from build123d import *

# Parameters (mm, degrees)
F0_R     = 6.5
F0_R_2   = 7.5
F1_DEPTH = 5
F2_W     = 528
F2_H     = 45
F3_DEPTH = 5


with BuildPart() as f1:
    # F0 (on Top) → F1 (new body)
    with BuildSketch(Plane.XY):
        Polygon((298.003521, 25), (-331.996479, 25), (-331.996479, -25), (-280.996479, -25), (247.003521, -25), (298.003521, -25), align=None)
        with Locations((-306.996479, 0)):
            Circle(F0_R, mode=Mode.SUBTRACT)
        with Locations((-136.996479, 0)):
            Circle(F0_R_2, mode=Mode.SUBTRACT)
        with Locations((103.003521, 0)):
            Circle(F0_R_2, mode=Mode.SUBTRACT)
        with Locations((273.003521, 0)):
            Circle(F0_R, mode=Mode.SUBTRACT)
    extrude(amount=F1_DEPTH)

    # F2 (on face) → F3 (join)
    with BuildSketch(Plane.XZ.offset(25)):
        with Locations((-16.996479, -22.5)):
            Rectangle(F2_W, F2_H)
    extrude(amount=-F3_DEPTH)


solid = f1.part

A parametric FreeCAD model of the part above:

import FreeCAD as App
import Part
import Sketcher

V = App.Vector
Q = App.Units.Quantity

doc = App.newDocument("Part")
body = doc.addObject("PartDesign::Body", "Body")

sketch1 = doc.addObject("Sketcher::SketchObject", "Sketch")
body.addObject(sketch1)
sketch1.AttachmentSupport = (doc.XY_Plane, [""])
sketch1.MapMode = "FlatFace"
sketch1.addGeometry([
    Part.LineSegment(V(298, 25, 0), V(-332, 25, 0)),
    Part.LineSegment(V(-332, 25, 0), V(-332, -25, 0)),
    Part.LineSegment(V(-332, -25, 0), V(298, -25, 0)),
    Part.LineSegment(V(298, -25, 0), V(298, 25, 0)),
    Part.Circle(V(-307, 0, 0), V(0, 0, 1), 6),
    Part.Circle(V(-137, 0, 0), V(0, 0, 1), 8),
    Part.Circle(V(103, 0, 0), V(0, 0, 1), 8),
    Part.Circle(V(273, 0, 0), V(0, 0, 1), 6),
], False)
sketch1.addConstraint([
    Sketcher.Constraint("Coincident", 0, 2, 1, 1),
    Sketcher.Constraint("Coincident", 1, 2, 2, 1),
    Sketcher.Constraint("Coincident", 2, 2, 3, 1),
    Sketcher.Constraint("Coincident", 3, 2, 0, 1),
    Sketcher.Constraint("Horizontal", 0),
    Sketcher.Constraint("Vertical", 1),
    Sketcher.Constraint("Horizontal", 2),
    Sketcher.Constraint("Vertical", 3),
    Sketcher.Constraint("Equal", 5, 6),
    Sketcher.Constraint("Equal", 4, 7),
    Sketcher.Constraint("PointOnObject", 4, 3, -1),
    Sketcher.Constraint("PointOnObject", 5, 3, -1),
    Sketcher.Constraint("PointOnObject", 6, 3, -1),
    Sketcher.Constraint("PointOnObject", 7, 3, -1),
    Sketcher.Constraint("Diameter", 4, Q("13 mm")),
    Sketcher.Constraint("Diameter", 5, Q("15 mm")),
    Sketcher.Constraint("DistanceX", 0, 2, 0, 1, Q("630 mm")),
    Sketcher.Constraint("DistanceY", 1, 2, 1, 1, Q("50 mm")),
    Sketcher.Constraint("DistanceY", -1, 1, 0, 2, Q("25 mm")),
    Sketcher.Constraint("DistanceX", 4, 3, 5, 3, Q("170 mm")),
    Sketcher.Constraint("DistanceX", 5, 3, 6, 3, Q("240 mm")),
    Sketcher.Constraint("DistanceX", 6, 3, 7, 3, Q("170 mm")),
    Sketcher.Constraint("DistanceX", 0, 2, 4, 3, Q("25 mm")),
    Sketcher.Constraint("DistanceX", 4, 3, -1, 1, Q("306.996479 mm")),
])
pad1 = doc.addObject("PartDesign::Pad", "Pad")
body.addObject(pad1)
pad1.Profile = sketch1
pad1.Length = 5

sketch2 = doc.addObject("Sketcher::SketchObject", "Sketch001")
body.addObject(sketch2)
sketch2.AttachmentSupport = (doc.XZ_Plane, [""])
sketch2.MapMode = "FlatFace"
sketch2.AttachmentOffset = App.Placement(V(0, 0, 25), App.Rotation())
sketch2.addGeometry([
    Part.LineSegment(V(-281, 0, 0), V(-281, -45, 0)),
    Part.LineSegment(V(-281, -45, 0), V(247, -45, 0)),
    Part.LineSegment(V(247, -45, 0), V(247, 0, 0)),
    Part.LineSegment(V(247, 0, 0), V(-281, 0, 0)),
], False)
sketch2.addConstraint([
    Sketcher.Constraint("Coincident", 0, 2, 1, 1),
    Sketcher.Constraint("Coincident", 1, 2, 2, 1),
    Sketcher.Constraint("Coincident", 2, 2, 3, 1),
    Sketcher.Constraint("Coincident", 3, 2, 0, 1),
    Sketcher.Constraint("Vertical", 0),
    Sketcher.Constraint("Horizontal", 1),
    Sketcher.Constraint("Vertical", 2),
    Sketcher.Constraint("Horizontal", 3),
    Sketcher.Constraint("PointOnObject", 2, 2, -1),
    Sketcher.Constraint("DistanceX", 1, 1, 1, 2, Q("528 mm")),
    Sketcher.Constraint("DistanceY", 0, 2, 0, 1, Q("45 mm")),
    Sketcher.Constraint("DistanceX", 0, 2, -1, 1, Q("280.996479 mm")),
])
pad2 = doc.addObject("PartDesign::Pad", "Pad001")
body.addObject(pad2)
pad2.Profile = sketch2
pad2.Length = 5
pad2.Reversed = True

doc.recompute()
